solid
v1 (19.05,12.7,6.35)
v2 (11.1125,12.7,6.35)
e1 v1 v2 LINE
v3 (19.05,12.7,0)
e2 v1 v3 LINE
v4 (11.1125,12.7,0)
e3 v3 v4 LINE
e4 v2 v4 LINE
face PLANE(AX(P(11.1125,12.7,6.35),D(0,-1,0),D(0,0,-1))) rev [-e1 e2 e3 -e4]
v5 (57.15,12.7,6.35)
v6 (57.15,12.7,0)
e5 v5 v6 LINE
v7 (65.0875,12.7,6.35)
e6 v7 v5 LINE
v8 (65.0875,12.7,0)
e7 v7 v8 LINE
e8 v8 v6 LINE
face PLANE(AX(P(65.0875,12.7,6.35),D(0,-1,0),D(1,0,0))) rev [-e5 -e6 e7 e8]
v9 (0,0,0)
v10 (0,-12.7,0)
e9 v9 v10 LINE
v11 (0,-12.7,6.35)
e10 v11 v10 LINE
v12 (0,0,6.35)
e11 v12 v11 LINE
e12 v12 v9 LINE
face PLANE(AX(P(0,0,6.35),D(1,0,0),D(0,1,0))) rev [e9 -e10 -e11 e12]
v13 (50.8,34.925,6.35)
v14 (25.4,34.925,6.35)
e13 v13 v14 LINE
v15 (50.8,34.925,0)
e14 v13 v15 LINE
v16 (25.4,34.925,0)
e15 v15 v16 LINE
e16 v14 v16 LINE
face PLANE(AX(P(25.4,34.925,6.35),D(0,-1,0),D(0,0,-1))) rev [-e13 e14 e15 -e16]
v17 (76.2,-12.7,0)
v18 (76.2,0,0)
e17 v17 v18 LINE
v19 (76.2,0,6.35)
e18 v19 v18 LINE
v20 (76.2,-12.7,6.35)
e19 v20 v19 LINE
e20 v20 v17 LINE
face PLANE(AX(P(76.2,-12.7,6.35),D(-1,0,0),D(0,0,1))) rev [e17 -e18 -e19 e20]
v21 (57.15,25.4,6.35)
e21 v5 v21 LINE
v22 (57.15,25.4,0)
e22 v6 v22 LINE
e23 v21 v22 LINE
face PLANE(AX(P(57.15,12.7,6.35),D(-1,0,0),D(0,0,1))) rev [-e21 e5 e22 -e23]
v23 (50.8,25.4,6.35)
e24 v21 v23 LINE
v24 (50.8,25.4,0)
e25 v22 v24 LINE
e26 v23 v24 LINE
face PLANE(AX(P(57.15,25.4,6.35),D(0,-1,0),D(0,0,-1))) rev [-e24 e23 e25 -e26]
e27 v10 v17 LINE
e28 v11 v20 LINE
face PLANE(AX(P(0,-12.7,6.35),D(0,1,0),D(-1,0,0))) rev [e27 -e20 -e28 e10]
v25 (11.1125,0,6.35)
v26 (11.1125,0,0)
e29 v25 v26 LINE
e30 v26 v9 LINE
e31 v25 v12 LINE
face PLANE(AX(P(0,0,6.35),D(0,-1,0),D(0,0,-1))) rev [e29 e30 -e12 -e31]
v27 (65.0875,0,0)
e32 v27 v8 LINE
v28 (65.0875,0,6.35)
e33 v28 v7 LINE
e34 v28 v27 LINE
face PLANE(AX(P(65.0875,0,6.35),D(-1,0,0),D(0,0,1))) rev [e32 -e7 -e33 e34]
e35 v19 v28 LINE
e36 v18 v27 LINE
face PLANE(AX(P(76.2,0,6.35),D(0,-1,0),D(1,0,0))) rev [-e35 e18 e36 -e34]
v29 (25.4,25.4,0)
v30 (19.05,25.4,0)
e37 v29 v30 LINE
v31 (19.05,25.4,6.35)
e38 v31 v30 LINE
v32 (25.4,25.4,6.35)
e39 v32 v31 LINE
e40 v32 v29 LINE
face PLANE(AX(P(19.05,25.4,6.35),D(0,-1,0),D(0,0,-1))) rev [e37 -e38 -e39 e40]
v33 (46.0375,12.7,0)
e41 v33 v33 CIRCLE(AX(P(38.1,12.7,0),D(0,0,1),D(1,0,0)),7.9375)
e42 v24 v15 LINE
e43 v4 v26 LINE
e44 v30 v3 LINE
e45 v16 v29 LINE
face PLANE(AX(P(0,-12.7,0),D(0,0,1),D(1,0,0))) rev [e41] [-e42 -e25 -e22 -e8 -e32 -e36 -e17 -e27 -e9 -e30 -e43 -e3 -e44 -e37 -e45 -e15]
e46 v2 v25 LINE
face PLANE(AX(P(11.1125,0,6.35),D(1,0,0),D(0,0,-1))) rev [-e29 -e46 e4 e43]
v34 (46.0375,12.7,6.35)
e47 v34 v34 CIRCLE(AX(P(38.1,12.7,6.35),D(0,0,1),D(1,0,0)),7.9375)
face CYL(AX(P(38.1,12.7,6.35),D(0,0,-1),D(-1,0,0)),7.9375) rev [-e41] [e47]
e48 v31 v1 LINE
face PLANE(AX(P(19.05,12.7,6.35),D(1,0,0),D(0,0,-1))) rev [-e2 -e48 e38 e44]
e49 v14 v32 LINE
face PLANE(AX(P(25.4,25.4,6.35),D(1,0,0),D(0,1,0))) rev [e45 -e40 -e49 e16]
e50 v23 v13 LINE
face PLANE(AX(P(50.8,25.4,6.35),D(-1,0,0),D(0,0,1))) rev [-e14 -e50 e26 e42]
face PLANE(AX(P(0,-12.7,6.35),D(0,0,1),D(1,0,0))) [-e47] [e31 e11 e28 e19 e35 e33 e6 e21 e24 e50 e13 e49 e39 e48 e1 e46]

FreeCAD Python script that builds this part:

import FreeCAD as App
import Part
import Sketcher
Q = App.Units.Quantity

doc = App.newDocument("Part")
body = doc.addObject("PartDesign::Body", "Body")

# Sketch on XY plane
sketch1 = body.newObject("Sketcher::SketchObject", "Sketch")
sketch1.AttachmentSupport = (doc.getObject("XY_Plane"), [""])
sketch1.MapMode = "FlatFace"
sketch1.addGeometry([
    Part.LineSegment(App.Vector(11.1125, 0, 0), App.Vector(0, 0, 0)),  # 0
    Part.LineSegment(App.Vector(0, 0, 0), App.Vector(0, -12.7, 0)),  # 1
    Part.LineSegment(App.Vector(0, -12.7, 0), App.Vector(76.2, -12.7, 0)),  # 2
    Part.LineSegment(App.Vector(76.2, -12.7, 0), App.Vector(76.2, 0, 0)),  # 3
    Part.LineSegment(App.Vector(76.2, 0, 0), App.Vector(65.0875, 0, 0)),  # 4
    Part.LineSegment(App.Vector(65.0875, 0, 0), App.Vector(65.0875, 12.7, 0)),  # 5
    Part.LineSegment(App.Vector(65.0875, 12.7, 0), App.Vector(57.15, 12.7, 0)),  # 6
    Part.LineSegment(App.Vector(57.15, 12.7, 0), App.Vector(57.15, 25.4, 0)),  # 7
    Part.LineSegment(App.Vector(57.15, 25.4, 0), App.Vector(50.8, 25.4, 0)),  # 8
    Part.LineSegment(App.Vector(50.8, 25.4, 0), App.Vector(50.8, 34.925, 0)),  # 9
    Part.LineSegment(App.Vector(50.8, 34.925, 0), App.Vector(25.4, 34.925, 0)),  # 10
    Part.LineSegment(App.Vector(25.4, 34.925, 0), App.Vector(25.4, 25.4, 0)),  # 11
    Part.LineSegment(App.Vector(25.4, 25.4, 0), App.Vector(19.05, 25.4, 0)),  # 12
    Part.LineSegment(App.Vector(19.05, 25.4, 0), App.Vector(19.05, 12.7, 0)),  # 13
    Part.LineSegment(App.Vector(19.05, 12.7, 0), App.Vector(11.1125, 12.7, 0)),  # 14
    Part.LineSegment(App.Vector(11.1125, 12.7, 0), App.Vector(11.1125, 0, 0)),  # 15
    Part.Circle(App.Vector(38.1, 12.7, 0), App.Vector(0, 0, 1), 7.9375),  # 16
], False)
sketch1.addConstraint([
    Sketcher.Constraint("Coincident", 0, 2, 1, 1),
    Sketcher.Constraint("Coincident", 1, 2, 2, 1),
    Sketcher.Constraint("Coincident", 2, 2, 3, 1),
    Sketcher.Constraint("Coincident", 3, 2, 4, 1),
    Sketcher.Constraint("Coincident", 4, 2, 5, 1),
    Sketcher.Constraint("Coincident", 5, 2, 6, 1),
    Sketcher.Constraint("Coincident", 6, 2, 7, 1),
    Sketcher.Constraint("Coincident", 7, 2, 8, 1),
    Sketcher.Constraint("Coincident", 8, 2, 9, 1),
    Sketcher.Constraint("Coincident", 9, 2, 10, 1),
    Sketcher.Constraint("Coincident", 10, 2, 11, 1),
    Sketcher.Constraint("Coincident", 11, 2, 12, 1),
    Sketcher.Constraint("Coincident", 12, 2, 13, 1),
    Sketcher.Constraint("Coincident", 13, 2, 14, 1),
    Sketcher.Constraint("Coincident", 14, 2, 15, 1),
    Sketcher.Constraint("Coincident", 15, 2, 0, 1),
    Sketcher.Constraint("Horizontal", 0),
    Sketcher.Constraint("Vertical", 1),
    Sketcher.Constraint("Horizontal", 2),
    Sketcher.Constraint("Vertical", 3),
    Sketcher.Constraint("Horizontal", 4),
    Sketcher.Constraint("Vertical", 5),
    Sketcher.Constraint("Horizontal", 6),
    Sketcher.Constraint("Vertical", 7),
    Sketcher.Constraint("Horizontal", 8),
    Sketcher.Constraint("Vertical", 9),
    Sketcher.Constraint("Horizontal", 10),
    Sketcher.Constraint("Vertical", 11),
    Sketcher.Constraint("Horizontal", 12),
    Sketcher.Constraint("Vertical", 13),
    Sketcher.Constraint("Horizontal", 14),
    Sketcher.Constraint("Vertical", 15),
    Sketcher.Constraint("Coincident", 0, 2, -1, 1),
    Sketcher.Constraint("PointOnObject", 3, 2, -1),
    Sketcher.Constraint("Horizontal", 16, 3, 5, 2),
    Sketcher.Constraint("Horizontal", 8, 2, 11, 2),
    Sketcher.Constraint("Horizontal", 6, 2, 13, 2),
    Sketcher.Constraint("Equal", 0, 4),
    Sketcher.Constraint("Equal", 8, 12),
    Sketcher.Constraint("Equal", 6, 14),
    Sketcher.Constraint("Equal", 3, 5),
    Sketcher.Constraint("Equal", 5, 7),
    Sketcher.Constraint("DistanceX", 2, 1, 2, 2, Q("3 in")),
    Sketcher.Constraint("DistanceX", 10, 2, 10, 1, Q("1 in")),
    Sketcher.Constraint("Diameter", 16, Q("0.625 in")),
    Sketcher.Constraint("DistanceY", 1, 2, 1, 1, Q("0.5 in")),
    Sketcher.Constraint("DistanceX", 8, 2, 8, 1, Q("0.25 in")),
    Sketcher.Constraint("DistanceX", -1, 1, 16, 3, Q("1.5 in")),
    Sketcher.Constraint("DistanceX", 0, 2, 0, 1, Q("0.4375 in")),
    Sketcher.Constraint("DistanceY", 9, 1, 9, 2, Q("0.375 in")),
])
pad1 = body.newObject("PartDesign::Pad", "Pad")
pad1.Profile = sketch1
pad1.Length = Q("0.25 in")

doc.recompute()
